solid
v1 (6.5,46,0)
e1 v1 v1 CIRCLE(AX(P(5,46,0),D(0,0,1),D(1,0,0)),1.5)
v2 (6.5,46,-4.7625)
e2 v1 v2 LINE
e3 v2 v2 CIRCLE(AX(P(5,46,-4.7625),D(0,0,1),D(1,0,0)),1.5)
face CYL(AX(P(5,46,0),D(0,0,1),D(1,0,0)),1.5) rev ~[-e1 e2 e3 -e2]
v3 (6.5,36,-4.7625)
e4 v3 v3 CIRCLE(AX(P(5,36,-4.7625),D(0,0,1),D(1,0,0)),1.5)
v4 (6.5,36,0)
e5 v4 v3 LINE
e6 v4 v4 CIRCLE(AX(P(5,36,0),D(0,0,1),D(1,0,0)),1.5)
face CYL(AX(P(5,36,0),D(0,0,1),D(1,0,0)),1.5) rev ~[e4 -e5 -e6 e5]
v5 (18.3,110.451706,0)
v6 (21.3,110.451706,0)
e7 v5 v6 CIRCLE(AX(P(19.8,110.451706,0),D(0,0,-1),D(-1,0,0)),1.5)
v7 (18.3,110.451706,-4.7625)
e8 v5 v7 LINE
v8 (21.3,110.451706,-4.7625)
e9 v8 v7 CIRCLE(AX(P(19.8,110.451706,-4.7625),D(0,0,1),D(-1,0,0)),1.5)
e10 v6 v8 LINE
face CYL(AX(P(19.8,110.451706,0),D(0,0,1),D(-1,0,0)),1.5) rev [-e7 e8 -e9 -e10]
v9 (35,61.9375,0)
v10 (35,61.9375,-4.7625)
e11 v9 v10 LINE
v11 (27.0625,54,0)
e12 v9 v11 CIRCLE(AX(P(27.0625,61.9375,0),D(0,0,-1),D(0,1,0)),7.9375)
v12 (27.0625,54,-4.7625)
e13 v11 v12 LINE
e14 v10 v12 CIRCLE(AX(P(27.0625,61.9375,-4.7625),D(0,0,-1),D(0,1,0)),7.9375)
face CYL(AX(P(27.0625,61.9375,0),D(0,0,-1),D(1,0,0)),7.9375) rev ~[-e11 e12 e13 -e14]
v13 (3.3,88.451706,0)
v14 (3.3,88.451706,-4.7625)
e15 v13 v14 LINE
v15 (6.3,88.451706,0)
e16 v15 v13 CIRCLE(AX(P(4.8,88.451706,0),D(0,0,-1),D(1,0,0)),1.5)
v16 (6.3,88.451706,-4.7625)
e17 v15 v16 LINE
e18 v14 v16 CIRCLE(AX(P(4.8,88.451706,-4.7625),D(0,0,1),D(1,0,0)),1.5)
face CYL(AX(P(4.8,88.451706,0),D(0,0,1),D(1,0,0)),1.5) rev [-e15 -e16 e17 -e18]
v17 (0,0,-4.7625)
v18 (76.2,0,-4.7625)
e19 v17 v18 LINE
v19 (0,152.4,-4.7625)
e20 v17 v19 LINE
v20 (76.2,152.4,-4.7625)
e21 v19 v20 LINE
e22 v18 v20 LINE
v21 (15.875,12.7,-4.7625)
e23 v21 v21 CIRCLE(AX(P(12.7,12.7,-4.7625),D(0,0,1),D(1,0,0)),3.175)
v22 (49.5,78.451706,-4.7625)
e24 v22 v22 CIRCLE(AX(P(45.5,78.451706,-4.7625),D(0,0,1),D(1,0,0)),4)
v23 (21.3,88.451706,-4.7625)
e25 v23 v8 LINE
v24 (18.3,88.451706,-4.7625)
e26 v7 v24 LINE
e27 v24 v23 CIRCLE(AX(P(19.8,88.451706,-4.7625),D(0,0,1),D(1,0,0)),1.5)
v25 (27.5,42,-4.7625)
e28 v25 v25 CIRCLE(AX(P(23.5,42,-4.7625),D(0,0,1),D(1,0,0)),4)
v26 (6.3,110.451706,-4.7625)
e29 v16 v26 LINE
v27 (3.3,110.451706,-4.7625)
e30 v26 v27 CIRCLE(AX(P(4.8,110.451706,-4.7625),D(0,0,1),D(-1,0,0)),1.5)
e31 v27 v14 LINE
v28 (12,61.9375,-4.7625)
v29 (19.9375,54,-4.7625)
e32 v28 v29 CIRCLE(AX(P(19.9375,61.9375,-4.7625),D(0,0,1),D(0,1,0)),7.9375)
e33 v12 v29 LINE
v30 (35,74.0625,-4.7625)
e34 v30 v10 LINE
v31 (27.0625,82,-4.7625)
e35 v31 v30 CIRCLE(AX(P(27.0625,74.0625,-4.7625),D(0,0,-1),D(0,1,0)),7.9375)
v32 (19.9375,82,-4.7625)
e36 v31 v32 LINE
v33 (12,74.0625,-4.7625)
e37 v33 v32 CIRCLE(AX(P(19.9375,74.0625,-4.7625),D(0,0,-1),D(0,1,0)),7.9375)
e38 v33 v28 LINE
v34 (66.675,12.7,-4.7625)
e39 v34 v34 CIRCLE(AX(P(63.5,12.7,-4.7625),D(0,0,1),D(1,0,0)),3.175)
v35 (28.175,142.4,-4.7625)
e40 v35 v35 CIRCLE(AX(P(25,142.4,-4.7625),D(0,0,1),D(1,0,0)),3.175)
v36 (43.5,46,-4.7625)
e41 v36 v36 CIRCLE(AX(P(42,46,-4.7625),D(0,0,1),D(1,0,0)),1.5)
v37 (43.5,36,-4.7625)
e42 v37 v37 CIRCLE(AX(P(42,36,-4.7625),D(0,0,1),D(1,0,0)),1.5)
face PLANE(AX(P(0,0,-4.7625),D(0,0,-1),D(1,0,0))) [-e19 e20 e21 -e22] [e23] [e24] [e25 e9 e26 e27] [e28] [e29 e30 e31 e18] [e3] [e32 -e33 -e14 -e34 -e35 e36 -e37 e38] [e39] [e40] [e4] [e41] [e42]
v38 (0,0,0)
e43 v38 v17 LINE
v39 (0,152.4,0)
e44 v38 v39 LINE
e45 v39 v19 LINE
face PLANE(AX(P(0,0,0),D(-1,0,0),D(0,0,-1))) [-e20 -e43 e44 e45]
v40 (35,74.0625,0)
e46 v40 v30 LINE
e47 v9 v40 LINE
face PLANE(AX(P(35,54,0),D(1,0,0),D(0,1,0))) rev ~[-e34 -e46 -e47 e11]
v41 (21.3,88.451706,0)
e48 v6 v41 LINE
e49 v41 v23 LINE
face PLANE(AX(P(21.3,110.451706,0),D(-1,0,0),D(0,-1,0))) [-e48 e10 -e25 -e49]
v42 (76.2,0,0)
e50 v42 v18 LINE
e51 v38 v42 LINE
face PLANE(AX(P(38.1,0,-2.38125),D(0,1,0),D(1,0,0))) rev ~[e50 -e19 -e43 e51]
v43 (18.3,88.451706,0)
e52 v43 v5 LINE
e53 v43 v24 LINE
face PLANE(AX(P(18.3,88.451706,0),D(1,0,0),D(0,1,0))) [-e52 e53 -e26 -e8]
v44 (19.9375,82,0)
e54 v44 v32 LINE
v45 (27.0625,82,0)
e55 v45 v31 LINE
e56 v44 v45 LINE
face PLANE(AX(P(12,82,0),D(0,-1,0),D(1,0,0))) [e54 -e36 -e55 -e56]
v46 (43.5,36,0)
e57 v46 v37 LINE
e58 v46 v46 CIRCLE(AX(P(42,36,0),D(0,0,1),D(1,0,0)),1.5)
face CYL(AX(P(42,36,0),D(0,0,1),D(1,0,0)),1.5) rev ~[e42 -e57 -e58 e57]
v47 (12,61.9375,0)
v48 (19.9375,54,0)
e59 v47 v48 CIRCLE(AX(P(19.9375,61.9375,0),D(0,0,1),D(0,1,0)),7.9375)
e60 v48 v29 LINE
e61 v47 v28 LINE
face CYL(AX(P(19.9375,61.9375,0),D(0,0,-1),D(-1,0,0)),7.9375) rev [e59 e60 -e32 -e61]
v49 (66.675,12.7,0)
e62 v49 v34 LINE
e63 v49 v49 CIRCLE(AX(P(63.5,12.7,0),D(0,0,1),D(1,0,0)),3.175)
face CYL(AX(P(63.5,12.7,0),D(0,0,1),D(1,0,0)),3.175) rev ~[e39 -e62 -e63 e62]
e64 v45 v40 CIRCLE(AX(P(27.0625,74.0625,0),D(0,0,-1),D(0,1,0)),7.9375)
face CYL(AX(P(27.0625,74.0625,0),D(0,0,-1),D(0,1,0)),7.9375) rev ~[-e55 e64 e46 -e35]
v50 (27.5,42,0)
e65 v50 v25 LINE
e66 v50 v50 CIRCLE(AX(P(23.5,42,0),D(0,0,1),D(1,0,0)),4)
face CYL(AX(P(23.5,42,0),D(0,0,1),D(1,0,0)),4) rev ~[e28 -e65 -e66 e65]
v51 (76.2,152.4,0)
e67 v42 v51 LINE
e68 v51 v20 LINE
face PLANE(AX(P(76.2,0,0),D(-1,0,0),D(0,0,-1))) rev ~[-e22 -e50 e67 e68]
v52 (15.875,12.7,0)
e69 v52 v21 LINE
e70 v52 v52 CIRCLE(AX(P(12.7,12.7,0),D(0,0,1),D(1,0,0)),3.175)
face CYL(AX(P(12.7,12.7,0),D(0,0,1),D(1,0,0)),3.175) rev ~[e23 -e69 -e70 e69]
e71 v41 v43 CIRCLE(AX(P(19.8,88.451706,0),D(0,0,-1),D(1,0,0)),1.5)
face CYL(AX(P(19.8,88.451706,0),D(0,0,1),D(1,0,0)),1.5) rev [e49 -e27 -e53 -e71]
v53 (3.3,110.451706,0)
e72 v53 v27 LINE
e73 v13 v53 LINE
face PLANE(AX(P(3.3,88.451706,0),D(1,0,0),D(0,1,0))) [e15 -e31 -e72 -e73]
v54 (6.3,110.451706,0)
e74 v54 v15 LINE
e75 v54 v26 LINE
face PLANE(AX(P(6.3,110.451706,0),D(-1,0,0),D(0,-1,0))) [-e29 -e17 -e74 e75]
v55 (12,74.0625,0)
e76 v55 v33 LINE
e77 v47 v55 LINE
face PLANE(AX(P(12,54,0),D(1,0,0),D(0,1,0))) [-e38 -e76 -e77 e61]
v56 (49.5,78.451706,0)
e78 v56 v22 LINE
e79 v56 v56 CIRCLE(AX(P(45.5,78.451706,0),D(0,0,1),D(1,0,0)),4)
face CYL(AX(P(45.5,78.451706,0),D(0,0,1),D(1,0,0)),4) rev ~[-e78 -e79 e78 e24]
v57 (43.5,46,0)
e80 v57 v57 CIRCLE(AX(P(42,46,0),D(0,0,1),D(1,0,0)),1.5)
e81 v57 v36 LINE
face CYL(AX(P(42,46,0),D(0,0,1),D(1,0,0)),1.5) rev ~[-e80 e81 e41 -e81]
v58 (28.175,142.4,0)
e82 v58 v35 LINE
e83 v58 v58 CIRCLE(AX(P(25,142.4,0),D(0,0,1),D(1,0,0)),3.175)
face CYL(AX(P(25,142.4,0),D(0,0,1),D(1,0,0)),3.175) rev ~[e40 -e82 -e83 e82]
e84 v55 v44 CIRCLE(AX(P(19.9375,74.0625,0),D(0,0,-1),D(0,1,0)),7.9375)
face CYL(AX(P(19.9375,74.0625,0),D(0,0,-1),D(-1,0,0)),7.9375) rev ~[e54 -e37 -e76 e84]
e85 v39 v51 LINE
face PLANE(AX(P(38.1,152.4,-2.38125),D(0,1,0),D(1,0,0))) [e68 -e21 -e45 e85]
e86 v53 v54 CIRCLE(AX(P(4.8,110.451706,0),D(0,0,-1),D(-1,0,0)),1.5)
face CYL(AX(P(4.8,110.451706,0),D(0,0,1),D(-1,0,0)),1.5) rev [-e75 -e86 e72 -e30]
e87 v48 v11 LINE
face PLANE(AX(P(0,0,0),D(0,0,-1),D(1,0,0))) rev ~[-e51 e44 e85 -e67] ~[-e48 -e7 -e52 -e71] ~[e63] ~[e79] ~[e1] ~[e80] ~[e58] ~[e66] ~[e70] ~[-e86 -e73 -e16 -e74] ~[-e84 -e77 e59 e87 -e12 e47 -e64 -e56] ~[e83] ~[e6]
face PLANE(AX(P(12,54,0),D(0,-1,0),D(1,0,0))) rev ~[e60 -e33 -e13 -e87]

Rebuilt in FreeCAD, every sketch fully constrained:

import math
import FreeCAD as App
import Part
import Sketcher

V = App.Vector


def edges_at(feature, points):
    """Names of the edges that pass closest to the given points."""
    edges = feature.Shape.Edges
    near = lambda p: min(range(len(edges)), key=lambda i: edges[i].distToShape(Part.Vertex(*p))[0])
    return sorted({f"Edge{near(p) + 1}" for p in points})

doc = App.newDocument("Part")
body = doc.addObject("PartDesign::Body", "Body")

sketch1 = body.newObject("Sketcher::SketchObject", "Sketch")
sketch1.AttachmentSupport = (doc.getObject("XZ_Plane"), [""])
sketch1.MapMode = "FlatFace"
sketch1.addGeometry([
    Part.LineSegment(V(0, -4.7625, 0), V(0, 0, 0)),
    Part.LineSegment(V(0, 0, 0), V(76.2, 0, 0)),
    Part.LineSegment(V(76.2, 0, 0), V(76.2, -4.7625, 0)),
    Part.LineSegment(V(76.2, -4.7625, 0), V(0, -4.7625, 0)),
], False)
sketch1.addConstraint([
    Sketcher.Constraint("Coincident", 0, 2, 1, 1),
    Sketcher.Constraint("Coincident", 1, 2, 2, 1),
    Sketcher.Constraint("Coincident", 2, 2, 3, 1),
    Sketcher.Constraint("Coincident", 3, 2, 0, 1),
    Sketcher.Constraint("Vertical", 0),
    Sketcher.Constraint("Horizontal", 1),
    Sketcher.Constraint("Vertical", 2),
    Sketcher.Constraint("Horizontal", 3),
    Sketcher.Constraint("Coincident", 0, 2, -1, 1),
    Sketcher.Constraint("DistanceX", 1, 1, 1, 2, 76.2),
    Sketcher.Constraint("DistanceY", 0, 1, 0, 2, 4.7625),
])
pad1 = body.newObject("PartDesign::Pad", "Pad")
pad1.Profile = sketch1
pad1.Length = 152.4
pad1.Reversed = True

sketch2 = body.newObject("Sketcher::SketchObject", "Sketch001")
sketch2.AttachmentSupport = (doc.getObject("XY_Plane"), [""])
sketch2.MapMode = "FlatFace"
sketch2.addGeometry([
    Part.Circle(V(23.5, 42, 0), V(0, 0, 1), 4),
    Part.Circle(V(45.5, 78.451706, 0), V(0, 0, 1), 4),
], False)
sketch2.addConstraint([
    Sketcher.Constraint("Equal", 0, 1),
    Sketcher.Constraint("Diameter", 0, 8.0),
    Sketcher.Constraint("DistanceY", -1, 1, 0, 3, 42.0),
    Sketcher.Constraint("DistanceX", 0, 3, 1, 3, 22.0),
    Sketcher.Constraint("DistanceX", -1, 1, 0, 3, 23.5),
    Sketcher.Constraint("DistanceY", -1, 1, 1, 3, 78.451706),
])
pocket1 = body.newObject("PartDesign::Pocket", "Pocket")
pocket1.Profile = sketch2
pocket1.Type = "ThroughAll"

sketch3 = body.newObject("Sketcher::SketchObject", "Sketch002")
sketch3.AttachmentSupport = (doc.getObject("XY_Plane"), [""])
sketch3.MapMode = "FlatFace"
sketch3.addGeometry([
    Part.LineSegment(V(12, 82, 0), V(12, 54, 0)),
    Part.LineSegment(V(12, 54, 0), V(35, 54, 0)),
    Part.LineSegment(V(35, 54, 0), V(35, 82, 0)),
    Part.LineSegment(V(35, 82, 0), V(12, 82, 0)),
], False)
sketch3.addConstraint([
    Sketcher.Constraint("Coincident", 0, 2, 1, 1),
    Sketcher.Constraint("Coincident", 1, 2, 2, 1),
    Sketcher.Constraint("Coincident", 2, 2, 3, 1),
    Sketcher.Constraint("Coincident", 3, 2, 0, 1),
    Sketcher.Constraint("Vertical", 0),
    Sketcher.Constraint("Horizontal", 1),
    Sketcher.Constraint("Vertical", 2),
    Sketcher.Constraint("Horizontal", 3),
    Sketcher.Constraint("DistanceX", 1, 1, 1, 2, 23.0),
    Sketcher.Constraint("DistanceY", 0, 2, 0, 1, 28.0),
    Sketcher.Constraint("DistanceX", -1, 1, 0, 2, 12.0),
    Sketcher.Constraint("DistanceY", -1, 1, 0, 2, 54.0),
])
pocket2 = body.newObject("PartDesign::Pocket", "Pocket001")
pocket2.Profile = sketch3
pocket2.Type = "ThroughAll"
doc.recompute()

fillet = body.newObject("PartDesign::Fillet", "Fillet")
fillet.Base = (pocket2, edges_at(pocket2, [
    (12, 54, -2.381),
    (12, 82, -2.381),
    (35, 82, -2.381),
    (35, 54, -2.381),
]))
fillet.Radius = 7.9375

sketch4 = body.newObject("Sketcher::SketchObject", "Sketch003")
sketch4.AttachmentSupport = (doc.getObject("XY_Plane"), [""])
sketch4.MapMode = "FlatFace"
sketch4.addGeometry([
    Part.LineSegment(V(6.3, 88.451706, 0), V(6.3, 110.451706, 0)),
    Part.ArcOfCircle(Part.Circle(V(4.8, 110.451706, 0), V(0, 0, 1), 1.5), math.radians(0), math.radians(180)),
    Part.LineSegment(V(3.3, 110.451706, 0), V(3.3, 88.451706, 0)),
    Part.ArcOfCircle(Part.Circle(V(4.8, 88.451706, 0), V(0, 0, 1), 1.5), math.radians(180), math.radians(360)),
    Part.LineSegment(V(21.3, 88.451706, 0), V(21.3, 110.451706, 0)),
    Part.ArcOfCircle(Part.Circle(V(19.8, 110.451706, 0), V(0, 0, 1), 1.5), math.radians(0), math.radians(180)),
    Part.LineSegment(V(18.3, 110.451706, 0), V(18.3, 88.451706, 0)),
    Part.ArcOfCircle(Part.Circle(V(19.8, 88.451706, 0), V(0, 0, 1), 1.5), math.radians(180), math.radians(360)),
], False)
sketch4.addConstraint([
    Sketcher.Constraint("Tangent", 0, 2, 1, 1),
    Sketcher.Constraint("Tangent", 1, 2, 2, 1),
    Sketcher.Constraint("Tangent", 2, 2, 3, 1),
    Sketcher.Constraint("Tangent", 3, 2, 0, 1),
    Sketcher.Constraint("Tangent", 4, 2, 5, 1),
    Sketcher.Constraint("Tangent", 5, 2, 6, 1),
    Sketcher.Constraint("Tangent", 6, 2, 7, 1),
    Sketcher.Constraint("Tangent", 7, 2, 4, 1),
    Sketcher.Constraint("Vertical", 0),
    Sketcher.Constraint("Vertical", 2),
    Sketcher.Constraint("Vertical", 4),
    Sketcher.Constraint("Vertical", 6),
    Sketcher.Constraint("Equal", 3, 5),
    Sketcher.Constraint("Horizontal", 1, 3, 5, 3),
    Sketcher.Constraint("Horizontal", 3, 3, 7, 3),
    Sketcher.Constraint("Radius", 1, 1.5),
    Sketcher.Constraint("DistanceY", 0, 1, 0, 2, 22.0),
    Sketcher.Constraint("DistanceX", 1, 3, 5, 3, 15.0),
    Sketcher.Constraint("DistanceX", -1, 1, 1, 3, 4.8),
    Sketcher.Constraint("DistanceY", -1, 1, 1, 3, 110.451706),
])
pocket3 = body.newObject("PartDesign::Pocket", "Pocket002")
pocket3.Profile = sketch4
pocket3.Type = "ThroughAll"

sketch5 = body.newObject("Sketcher::SketchObject", "Sketch004")
sketch5.AttachmentSupport = (doc.getObject("XY_Plane"), [""])
sketch5.MapMode = "FlatFace"
sketch5.addGeometry([
    Part.Circle(V(5, 36, 0), V(0, 0, 1), 1.5),
    Part.Circle(V(42, 36, 0), V(0, 0, 1), 1.5),
    Part.Circle(V(5, 46, 0), V(0, 0, 1), 1.5),
    Part.Circle(V(42, 46, 0), V(0, 0, 1), 1.5),
], False)
sketch5.addConstraint([
    Sketcher.Constraint("Equal", 0, 1),
    Sketcher.Constraint("Equal", 1, 2),
    Sketcher.Constraint("Equal", 2, 3),
    Sketcher.Constraint("Horizontal", 0, 3, 1, 3),
    Sketcher.Constraint("Horizontal", 2, 3, 3, 3),
    Sketcher.Constraint("Vertical", 0, 3, 2, 3),
    Sketcher.Constraint("Vertical", 1, 3, 3, 3),
    Sketcher.Constraint("Diameter", 0, 3.0),
    Sketcher.Constraint("DistanceX", -1, 1, 0, 3, 5.0),
    Sketcher.Constraint("DistanceY", -1, 1, 0, 3, 36.0),
    Sketcher.Constraint("DistanceX", -1, 1, 1, 3, 42.0),
    Sketcher.Constraint("DistanceY", -1, 1, 2, 3, 46.0),
])
pocket4 = body.newObject("PartDesign::Pocket", "Pocket003")
pocket4.Profile = sketch5
pocket4.Type = "ThroughAll"

sketch6 = body.newObject("Sketcher::SketchObject", "Sketch005")
sketch6.AttachmentSupport = (doc.getObject("XY_Plane"), [""])
sketch6.MapMode = "FlatFace"
sketch6.addGeometry([
    Part.Circle(V(12.7, 12.7, 0), V(0, 0, 1), 3.175),
    Part.Circle(V(63.5, 12.7, 0), V(0, 0, 1), 3.175),
], False)
sketch6.addConstraint([
    Sketcher.Constraint("Equal", 0, 1),
    Sketcher.Constraint("Horizontal", 0, 3, 1, 3),
    Sketcher.Constraint("Diameter", 0, 6.35),
    Sketcher.Constraint("DistanceX", -1, 1, 0, 3, 12.7),
    Sketcher.Constraint("DistanceY", -1, 1, 0, 3, 12.7),
    Sketcher.Constraint("DistanceX", -1, 1, 1, 3, 63.5),
])
pocket5 = body.newObject("PartDesign::Pocket", "Pocket004")
pocket5.Profile = sketch6
pocket5.Type = "ThroughAll"

sketch7 = body.newObject("Sketcher::SketchObject", "Sketch006")
sketch7.AttachmentSupport = (doc.getObject("XY_Plane"), [""])
sketch7.MapMode = "FlatFace"
sketch7.addGeometry(Part.Circle(V(25, 142.4, 0), V(0, 0, 1), 3.175), False)
sketch7.addConstraint([
    Sketcher.Constraint("Diameter", 0, 6.35),
    Sketcher.Constraint("DistanceX", -1, 1, 0, 3, 25.0),
    Sketcher.Constraint("DistanceY", -1, 1, 0, 3, 142.4),
])
pocket6 = body.newObject("PartDesign::Pocket", "Pocket005")
pocket6.Profile = sketch7
pocket6.Type = "ThroughAll"

doc.recompute()
